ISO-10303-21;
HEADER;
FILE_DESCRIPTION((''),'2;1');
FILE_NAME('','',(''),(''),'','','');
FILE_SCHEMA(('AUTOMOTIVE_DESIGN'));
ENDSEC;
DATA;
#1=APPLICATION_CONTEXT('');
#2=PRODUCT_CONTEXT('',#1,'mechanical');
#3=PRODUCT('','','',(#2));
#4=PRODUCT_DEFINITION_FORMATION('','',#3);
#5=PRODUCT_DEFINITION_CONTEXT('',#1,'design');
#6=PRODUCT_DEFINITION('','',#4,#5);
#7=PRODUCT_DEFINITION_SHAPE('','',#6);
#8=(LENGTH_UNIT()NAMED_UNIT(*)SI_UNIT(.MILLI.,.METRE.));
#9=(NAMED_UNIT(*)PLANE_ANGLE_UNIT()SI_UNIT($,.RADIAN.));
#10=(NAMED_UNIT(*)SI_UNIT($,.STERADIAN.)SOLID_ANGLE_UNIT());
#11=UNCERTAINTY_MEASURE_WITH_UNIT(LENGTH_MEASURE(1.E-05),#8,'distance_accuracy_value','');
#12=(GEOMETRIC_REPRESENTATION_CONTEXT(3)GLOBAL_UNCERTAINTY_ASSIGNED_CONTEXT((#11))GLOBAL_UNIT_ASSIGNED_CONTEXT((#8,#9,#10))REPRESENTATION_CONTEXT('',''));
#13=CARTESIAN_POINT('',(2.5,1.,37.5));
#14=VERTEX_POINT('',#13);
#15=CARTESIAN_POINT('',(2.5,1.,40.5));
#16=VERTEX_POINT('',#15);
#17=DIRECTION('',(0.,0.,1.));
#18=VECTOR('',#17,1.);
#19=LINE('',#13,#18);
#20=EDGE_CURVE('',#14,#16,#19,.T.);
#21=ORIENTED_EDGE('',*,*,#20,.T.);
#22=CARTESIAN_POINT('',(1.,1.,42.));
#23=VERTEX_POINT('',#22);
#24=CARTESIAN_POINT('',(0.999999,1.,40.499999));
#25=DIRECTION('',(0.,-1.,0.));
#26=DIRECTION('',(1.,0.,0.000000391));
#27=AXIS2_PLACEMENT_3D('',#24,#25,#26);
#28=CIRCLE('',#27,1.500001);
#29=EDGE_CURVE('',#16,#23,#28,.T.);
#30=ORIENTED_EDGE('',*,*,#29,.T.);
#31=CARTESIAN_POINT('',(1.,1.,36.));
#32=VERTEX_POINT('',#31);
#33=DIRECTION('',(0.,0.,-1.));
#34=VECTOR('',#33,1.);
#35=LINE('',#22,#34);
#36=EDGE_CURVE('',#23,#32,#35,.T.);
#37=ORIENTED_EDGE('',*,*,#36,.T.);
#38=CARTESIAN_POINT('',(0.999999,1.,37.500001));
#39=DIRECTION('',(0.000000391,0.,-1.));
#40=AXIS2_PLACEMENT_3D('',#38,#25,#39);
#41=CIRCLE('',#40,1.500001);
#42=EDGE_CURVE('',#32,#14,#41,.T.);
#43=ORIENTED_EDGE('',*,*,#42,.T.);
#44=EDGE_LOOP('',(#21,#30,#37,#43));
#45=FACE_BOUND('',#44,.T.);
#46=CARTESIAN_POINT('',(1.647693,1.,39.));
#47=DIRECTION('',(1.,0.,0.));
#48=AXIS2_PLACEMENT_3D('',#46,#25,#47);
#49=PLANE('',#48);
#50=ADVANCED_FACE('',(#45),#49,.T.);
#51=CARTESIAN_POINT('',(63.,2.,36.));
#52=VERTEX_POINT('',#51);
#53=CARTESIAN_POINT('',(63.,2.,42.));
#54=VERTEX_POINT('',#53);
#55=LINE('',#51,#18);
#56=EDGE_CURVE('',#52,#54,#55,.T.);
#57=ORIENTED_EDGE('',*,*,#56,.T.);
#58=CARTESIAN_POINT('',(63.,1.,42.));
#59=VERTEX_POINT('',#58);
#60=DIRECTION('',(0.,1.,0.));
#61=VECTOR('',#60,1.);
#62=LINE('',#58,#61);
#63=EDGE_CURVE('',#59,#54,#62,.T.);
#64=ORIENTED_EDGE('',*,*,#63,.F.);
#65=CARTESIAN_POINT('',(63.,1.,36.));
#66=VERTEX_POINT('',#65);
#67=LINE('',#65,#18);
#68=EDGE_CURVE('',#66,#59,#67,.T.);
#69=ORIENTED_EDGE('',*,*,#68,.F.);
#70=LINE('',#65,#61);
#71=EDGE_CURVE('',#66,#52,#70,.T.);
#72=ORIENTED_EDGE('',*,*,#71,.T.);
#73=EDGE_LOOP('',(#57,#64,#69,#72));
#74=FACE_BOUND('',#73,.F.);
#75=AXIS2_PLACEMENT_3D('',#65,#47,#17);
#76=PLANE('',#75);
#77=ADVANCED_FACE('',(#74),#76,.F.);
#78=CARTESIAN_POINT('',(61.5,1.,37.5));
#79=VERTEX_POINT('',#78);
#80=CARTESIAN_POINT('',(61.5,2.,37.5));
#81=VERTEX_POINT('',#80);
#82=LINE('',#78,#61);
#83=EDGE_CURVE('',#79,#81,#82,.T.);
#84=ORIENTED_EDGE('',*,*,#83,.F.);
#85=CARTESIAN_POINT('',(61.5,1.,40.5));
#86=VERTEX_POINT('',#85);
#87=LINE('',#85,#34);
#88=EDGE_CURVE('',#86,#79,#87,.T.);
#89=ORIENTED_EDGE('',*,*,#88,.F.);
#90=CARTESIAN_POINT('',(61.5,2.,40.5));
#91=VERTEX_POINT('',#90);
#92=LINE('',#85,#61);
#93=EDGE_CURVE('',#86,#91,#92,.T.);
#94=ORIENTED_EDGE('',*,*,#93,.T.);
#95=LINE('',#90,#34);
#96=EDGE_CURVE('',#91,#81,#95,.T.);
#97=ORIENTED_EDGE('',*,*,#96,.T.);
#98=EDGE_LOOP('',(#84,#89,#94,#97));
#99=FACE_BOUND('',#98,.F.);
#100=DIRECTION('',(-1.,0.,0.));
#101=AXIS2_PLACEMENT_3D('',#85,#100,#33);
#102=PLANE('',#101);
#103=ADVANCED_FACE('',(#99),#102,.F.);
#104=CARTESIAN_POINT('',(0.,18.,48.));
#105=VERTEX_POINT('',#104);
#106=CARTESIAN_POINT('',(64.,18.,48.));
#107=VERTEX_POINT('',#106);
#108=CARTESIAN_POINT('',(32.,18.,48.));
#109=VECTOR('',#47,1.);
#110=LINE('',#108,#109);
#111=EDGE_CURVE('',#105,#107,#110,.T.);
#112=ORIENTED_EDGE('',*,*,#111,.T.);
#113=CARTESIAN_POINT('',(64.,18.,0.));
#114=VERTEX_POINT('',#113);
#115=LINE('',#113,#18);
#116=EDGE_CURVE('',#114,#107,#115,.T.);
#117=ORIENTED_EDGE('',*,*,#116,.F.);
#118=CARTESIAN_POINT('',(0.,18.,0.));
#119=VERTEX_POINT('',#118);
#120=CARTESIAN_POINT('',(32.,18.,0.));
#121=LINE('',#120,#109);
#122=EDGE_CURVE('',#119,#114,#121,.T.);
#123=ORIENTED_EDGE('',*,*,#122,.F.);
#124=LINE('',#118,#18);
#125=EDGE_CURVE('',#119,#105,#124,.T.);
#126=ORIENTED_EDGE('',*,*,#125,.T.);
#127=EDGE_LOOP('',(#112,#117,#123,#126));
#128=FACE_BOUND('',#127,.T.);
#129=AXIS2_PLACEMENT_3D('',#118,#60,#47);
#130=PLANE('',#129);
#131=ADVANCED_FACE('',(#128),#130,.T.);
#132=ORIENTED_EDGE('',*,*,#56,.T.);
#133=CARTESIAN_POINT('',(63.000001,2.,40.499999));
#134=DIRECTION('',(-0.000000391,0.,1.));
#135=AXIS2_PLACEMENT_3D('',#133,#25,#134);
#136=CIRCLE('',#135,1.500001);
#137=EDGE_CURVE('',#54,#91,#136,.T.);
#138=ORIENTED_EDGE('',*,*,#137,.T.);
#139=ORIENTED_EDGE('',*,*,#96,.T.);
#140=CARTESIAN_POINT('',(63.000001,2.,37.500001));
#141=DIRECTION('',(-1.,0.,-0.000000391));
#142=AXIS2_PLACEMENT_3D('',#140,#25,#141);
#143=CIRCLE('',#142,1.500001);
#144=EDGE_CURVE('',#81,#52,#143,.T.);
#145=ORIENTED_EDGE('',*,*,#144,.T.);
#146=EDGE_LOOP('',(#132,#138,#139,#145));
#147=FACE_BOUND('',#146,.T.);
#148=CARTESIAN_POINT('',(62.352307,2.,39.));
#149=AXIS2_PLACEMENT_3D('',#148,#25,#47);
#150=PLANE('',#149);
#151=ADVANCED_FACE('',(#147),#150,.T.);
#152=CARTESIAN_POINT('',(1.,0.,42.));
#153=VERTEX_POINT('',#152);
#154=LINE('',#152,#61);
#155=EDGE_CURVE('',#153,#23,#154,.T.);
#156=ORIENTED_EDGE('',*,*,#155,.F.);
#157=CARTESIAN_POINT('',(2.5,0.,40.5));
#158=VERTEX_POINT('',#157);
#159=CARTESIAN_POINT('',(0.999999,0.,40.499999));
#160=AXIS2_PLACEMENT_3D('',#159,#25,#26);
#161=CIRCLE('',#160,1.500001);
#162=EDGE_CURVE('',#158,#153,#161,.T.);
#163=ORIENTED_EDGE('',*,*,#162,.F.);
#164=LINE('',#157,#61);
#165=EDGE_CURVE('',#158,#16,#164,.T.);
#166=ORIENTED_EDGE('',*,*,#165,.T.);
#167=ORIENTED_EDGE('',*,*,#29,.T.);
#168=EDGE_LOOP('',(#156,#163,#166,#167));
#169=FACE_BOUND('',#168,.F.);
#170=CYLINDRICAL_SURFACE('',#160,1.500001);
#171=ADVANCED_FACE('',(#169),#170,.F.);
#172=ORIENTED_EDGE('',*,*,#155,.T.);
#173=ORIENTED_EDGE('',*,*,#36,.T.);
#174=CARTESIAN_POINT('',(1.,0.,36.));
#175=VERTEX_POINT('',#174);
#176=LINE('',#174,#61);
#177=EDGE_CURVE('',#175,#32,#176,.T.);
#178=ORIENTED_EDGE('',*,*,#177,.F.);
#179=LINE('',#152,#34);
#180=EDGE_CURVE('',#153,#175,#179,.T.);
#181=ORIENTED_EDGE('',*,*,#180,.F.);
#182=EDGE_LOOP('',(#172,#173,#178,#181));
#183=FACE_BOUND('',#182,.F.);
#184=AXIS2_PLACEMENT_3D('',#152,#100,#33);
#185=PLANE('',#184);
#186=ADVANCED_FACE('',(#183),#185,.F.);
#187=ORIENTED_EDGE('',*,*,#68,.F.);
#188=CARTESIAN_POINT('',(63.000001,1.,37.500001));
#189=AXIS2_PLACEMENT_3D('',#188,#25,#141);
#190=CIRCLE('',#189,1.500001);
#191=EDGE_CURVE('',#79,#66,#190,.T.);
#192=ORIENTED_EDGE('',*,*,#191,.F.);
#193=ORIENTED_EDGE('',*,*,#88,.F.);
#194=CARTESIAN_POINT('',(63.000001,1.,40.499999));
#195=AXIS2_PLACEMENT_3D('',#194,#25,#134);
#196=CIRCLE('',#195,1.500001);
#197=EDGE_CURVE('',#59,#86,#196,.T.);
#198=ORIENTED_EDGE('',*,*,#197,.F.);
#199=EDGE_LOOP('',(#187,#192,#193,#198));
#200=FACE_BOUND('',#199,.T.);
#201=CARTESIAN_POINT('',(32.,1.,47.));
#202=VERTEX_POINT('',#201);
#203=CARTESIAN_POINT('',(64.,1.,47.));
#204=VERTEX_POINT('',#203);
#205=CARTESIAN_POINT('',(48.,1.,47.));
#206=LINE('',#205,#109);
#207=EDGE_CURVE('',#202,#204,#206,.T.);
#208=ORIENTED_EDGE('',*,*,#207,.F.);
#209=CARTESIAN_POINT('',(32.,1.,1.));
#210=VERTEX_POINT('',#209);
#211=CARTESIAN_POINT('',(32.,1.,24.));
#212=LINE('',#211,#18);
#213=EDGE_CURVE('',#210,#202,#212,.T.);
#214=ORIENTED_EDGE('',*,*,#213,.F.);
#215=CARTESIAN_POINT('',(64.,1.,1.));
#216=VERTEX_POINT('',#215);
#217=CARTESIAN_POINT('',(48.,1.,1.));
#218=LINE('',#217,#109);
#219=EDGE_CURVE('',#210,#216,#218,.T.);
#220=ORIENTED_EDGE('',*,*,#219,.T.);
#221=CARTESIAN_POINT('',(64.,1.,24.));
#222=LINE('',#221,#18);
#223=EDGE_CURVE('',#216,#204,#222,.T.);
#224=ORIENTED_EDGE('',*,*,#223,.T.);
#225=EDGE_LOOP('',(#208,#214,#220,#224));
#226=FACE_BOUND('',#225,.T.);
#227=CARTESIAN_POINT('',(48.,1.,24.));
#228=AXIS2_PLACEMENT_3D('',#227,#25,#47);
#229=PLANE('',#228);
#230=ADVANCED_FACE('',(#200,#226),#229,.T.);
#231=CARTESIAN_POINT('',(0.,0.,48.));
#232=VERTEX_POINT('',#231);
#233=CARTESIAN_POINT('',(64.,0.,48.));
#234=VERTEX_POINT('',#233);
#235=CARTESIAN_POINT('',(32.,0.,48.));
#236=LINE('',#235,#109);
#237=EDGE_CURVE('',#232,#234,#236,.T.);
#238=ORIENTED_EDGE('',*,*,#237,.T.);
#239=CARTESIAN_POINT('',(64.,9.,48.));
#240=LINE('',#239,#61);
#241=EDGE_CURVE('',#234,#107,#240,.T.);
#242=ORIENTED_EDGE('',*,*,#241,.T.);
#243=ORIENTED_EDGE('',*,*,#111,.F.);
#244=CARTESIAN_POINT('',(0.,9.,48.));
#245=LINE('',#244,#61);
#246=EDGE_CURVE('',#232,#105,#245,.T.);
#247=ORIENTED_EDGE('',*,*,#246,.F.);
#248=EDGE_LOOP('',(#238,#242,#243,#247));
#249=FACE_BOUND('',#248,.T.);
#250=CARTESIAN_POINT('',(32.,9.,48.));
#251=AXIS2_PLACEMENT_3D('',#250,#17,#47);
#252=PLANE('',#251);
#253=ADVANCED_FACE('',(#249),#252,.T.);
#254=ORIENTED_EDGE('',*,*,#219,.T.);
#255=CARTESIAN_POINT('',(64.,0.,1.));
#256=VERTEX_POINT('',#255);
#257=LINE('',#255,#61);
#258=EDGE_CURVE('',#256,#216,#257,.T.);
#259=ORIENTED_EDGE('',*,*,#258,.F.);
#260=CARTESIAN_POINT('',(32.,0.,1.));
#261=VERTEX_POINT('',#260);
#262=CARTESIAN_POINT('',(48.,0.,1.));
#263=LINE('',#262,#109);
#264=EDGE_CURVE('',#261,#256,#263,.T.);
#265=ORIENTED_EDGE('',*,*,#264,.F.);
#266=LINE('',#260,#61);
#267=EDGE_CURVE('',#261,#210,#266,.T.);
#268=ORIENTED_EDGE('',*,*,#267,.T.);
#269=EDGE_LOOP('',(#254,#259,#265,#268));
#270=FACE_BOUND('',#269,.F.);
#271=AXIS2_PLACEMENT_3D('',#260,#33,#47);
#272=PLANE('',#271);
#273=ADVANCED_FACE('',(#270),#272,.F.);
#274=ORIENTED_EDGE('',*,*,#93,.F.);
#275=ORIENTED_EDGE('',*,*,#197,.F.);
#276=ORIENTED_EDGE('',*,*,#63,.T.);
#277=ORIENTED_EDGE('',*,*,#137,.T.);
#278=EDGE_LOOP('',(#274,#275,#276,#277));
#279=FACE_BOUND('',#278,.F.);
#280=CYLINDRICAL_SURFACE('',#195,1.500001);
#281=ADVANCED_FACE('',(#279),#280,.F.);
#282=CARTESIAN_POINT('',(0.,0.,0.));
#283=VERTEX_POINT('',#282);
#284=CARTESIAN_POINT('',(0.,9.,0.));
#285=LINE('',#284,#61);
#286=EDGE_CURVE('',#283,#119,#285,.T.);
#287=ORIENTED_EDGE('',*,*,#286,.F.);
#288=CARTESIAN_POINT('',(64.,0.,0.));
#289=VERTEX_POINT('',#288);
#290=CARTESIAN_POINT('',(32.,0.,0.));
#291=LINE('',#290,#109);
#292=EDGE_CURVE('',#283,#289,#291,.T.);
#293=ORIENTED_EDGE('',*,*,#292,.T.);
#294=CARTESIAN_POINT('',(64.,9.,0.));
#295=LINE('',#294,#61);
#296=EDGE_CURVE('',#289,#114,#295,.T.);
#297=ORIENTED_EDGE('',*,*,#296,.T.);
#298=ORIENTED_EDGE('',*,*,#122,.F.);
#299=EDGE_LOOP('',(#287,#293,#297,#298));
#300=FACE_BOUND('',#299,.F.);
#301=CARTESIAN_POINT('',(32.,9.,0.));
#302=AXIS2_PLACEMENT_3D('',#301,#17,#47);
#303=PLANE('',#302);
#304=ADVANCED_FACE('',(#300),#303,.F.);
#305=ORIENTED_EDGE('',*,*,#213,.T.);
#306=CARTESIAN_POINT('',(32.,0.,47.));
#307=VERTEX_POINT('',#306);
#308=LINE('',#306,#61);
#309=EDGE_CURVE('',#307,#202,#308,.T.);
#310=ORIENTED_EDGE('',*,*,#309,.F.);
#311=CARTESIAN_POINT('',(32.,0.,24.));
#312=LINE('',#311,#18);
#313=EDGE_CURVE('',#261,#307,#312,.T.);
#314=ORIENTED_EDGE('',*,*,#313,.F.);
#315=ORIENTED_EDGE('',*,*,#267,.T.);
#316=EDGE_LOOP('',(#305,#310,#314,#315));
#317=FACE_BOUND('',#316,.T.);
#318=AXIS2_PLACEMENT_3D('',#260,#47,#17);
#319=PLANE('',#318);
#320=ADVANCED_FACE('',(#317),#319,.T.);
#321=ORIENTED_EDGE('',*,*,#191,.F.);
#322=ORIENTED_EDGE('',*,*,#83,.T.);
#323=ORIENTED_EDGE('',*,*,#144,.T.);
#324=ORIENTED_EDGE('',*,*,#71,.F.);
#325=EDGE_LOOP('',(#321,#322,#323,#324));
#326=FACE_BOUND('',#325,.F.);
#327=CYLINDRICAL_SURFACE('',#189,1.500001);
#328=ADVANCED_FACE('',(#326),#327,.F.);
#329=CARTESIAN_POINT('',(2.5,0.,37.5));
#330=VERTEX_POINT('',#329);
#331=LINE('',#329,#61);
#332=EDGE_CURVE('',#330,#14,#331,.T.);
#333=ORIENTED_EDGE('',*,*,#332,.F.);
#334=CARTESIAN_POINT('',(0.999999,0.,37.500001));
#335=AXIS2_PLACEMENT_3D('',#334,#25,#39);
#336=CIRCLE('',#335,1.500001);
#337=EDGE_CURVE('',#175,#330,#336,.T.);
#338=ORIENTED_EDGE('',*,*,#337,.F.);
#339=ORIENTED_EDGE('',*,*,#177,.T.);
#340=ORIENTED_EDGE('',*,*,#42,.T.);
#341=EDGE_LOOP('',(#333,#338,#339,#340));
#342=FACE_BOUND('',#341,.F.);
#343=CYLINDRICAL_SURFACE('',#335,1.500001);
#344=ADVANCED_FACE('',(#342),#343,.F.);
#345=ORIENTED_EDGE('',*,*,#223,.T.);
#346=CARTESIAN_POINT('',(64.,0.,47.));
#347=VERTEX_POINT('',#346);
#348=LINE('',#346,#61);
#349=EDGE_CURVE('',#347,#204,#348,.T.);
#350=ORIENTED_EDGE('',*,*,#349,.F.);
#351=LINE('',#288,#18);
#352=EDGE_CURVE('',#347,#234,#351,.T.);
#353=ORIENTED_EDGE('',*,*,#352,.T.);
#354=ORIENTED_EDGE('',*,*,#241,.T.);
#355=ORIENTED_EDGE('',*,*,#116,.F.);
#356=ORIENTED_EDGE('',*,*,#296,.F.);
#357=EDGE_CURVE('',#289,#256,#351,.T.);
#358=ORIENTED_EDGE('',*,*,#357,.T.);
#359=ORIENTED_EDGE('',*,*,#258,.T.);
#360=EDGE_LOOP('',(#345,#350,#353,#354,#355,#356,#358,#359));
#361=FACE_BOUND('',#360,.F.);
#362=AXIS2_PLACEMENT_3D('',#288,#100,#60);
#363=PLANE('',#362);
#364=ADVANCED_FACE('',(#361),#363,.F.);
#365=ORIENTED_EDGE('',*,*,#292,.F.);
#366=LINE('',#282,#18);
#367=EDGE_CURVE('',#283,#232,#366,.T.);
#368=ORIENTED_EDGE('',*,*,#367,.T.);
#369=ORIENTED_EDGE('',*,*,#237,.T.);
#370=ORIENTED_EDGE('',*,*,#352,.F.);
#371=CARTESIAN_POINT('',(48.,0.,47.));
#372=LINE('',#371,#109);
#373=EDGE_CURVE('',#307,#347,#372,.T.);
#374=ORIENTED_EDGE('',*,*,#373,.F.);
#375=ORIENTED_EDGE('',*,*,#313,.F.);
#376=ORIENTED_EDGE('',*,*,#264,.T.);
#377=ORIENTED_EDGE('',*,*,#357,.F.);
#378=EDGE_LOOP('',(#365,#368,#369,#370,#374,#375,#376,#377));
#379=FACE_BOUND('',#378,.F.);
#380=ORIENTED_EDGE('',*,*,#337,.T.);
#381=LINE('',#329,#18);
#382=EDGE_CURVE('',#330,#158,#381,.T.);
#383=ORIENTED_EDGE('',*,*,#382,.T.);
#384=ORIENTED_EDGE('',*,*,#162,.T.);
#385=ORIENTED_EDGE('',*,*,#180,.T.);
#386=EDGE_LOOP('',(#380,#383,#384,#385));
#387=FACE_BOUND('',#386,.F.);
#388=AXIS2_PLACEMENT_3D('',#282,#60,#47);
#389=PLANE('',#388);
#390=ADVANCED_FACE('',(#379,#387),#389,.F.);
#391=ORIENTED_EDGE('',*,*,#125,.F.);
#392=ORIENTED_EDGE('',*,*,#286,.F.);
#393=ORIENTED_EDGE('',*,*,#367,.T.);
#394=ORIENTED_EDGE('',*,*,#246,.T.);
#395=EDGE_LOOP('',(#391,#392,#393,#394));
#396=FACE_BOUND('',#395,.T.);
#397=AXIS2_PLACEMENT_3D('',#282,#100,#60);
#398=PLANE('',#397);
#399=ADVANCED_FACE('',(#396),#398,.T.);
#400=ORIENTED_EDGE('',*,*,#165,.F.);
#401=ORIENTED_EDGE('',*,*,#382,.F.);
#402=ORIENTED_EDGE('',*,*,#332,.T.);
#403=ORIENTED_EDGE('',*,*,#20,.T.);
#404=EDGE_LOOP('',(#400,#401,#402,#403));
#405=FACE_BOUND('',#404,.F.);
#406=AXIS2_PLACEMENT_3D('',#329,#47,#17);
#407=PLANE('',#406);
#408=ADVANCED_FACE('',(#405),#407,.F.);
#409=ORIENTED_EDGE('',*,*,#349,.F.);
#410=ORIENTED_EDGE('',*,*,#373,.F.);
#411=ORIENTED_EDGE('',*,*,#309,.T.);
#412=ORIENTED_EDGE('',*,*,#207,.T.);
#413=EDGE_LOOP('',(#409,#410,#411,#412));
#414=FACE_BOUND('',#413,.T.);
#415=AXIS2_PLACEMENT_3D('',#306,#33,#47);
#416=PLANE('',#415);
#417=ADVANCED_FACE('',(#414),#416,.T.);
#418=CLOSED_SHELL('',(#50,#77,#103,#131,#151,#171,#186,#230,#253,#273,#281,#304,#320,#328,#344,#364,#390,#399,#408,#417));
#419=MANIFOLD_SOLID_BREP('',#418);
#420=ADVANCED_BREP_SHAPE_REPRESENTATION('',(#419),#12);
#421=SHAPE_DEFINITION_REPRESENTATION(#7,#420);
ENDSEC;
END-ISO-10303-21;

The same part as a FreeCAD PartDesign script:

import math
import FreeCAD as App
import Part
import Sketcher
from FreeCAD import Vector
Q = App.Units.Quantity


def add_polygon(sketch, points):
    """Adds a closed chain of lines whose ends are joined by coincident constraints."""
    first, n = sketch.GeometryCount, len(points)
    for a, b in zip(points, points[1:] + points[:1]):
        sketch.addGeometry(Part.LineSegment(App.Vector(*a, 0), App.Vector(*b, 0)), False)
    for i in range(n):
        sketch.addConstraint(Sketcher.Constraint("Coincident", first + i, 2, first + (i + 1) % n, 1))

doc = App.newDocument("Part")
body = doc.addObject("PartDesign::Body", "Body")

# Sketch on XY plane
sketch1 = doc.addObject("Sketcher::SketchObject", "Sketch")
body.addObject(sketch1)
sketch1.AttachmentSupport = (doc.XY_Plane, [""])
sketch1.MapMode = "FlatFace"
add_polygon(sketch1, [(0, 18), (0, 0), (64, 0), (64, 18)])  # lines 0-3
sketch1.addConstraint(Sketcher.Constraint("Vertical", 0))
sketch1.addConstraint(Sketcher.Constraint("Horizontal", 1))
sketch1.addConstraint(Sketcher.Constraint("Vertical", 2))
sketch1.addConstraint(Sketcher.Constraint("Horizontal", 3))
sketch1.addConstraint(Sketcher.Constraint("Coincident", 0, 2, -1, 1))
sketch1.addConstraint(Sketcher.Constraint("DistanceX", 1, 1, 1, 2, Q("64 mm")))
sketch1.addConstraint(Sketcher.Constraint("DistanceY", 0, 2, 0, 1, Q("18 mm")))
pad1 = doc.addObject("PartDesign::Pad", "Pad")
body.addObject(pad1)
pad1.Profile = sketch1
pad1.Length = 48

# Sketch on XZ plane
sketch2 = doc.addObject("Sketcher::SketchObject", "Sketch001")
body.addObject(sketch2)
sketch2.AttachmentSupport = (doc.XZ_Plane, [""])
sketch2.MapMode = "FlatFace"
add_polygon(sketch2, [(32, 47), (32, 1), (64, 1), (64, 47)])  # lines 0-3
sketch2.addConstraint(Sketcher.Constraint("Vertical", 0))
sketch2.addConstraint(Sketcher.Constraint("Horizontal", 1))
sketch2.addConstraint(Sketcher.Constraint("Vertical", 2))
sketch2.addConstraint(Sketcher.Constraint("Horizontal", 3))
sketch2.addConstraint(Sketcher.Constraint("DistanceX", 1, 1, 1, 2, Q("32 mm")))
sketch2.addConstraint(Sketcher.Constraint("DistanceY", 0, 2, 0, 1, Q("46 mm")))
sketch2.addConstraint(Sketcher.Constraint("DistanceX", -1, 1, 0, 2, Q("32 mm")))
sketch2.addConstraint(Sketcher.Constraint("DistanceY", -1, 1, 0, 2, Q("1 mm")))
pocket1 = doc.addObject("PartDesign::Pocket", "Pocket")
body.addObject(pocket1)
pocket1.Profile = sketch2
pocket1.Length = 1

# Sketch on XZ plane
sketch3 = doc.addObject("Sketcher::SketchObject", "Sketch002")
body.addObject(sketch3)
sketch3.AttachmentSupport = (doc.XZ_Plane, [""])
sketch3.MapMode = "FlatFace"
sketch3.AttachmentOffset = App.Placement(Vector(0, 0, -1), App.Rotation())
sketch3.addGeometry(Part.ArcOfCircle(Part.Circle(Vector(63, 40.5, 0), Vector(0, 0, 1), 1.5), math.radians(90), math.radians(180)), False)
sketch3.addGeometry(Part.LineSegment(Vector(61.5, 40.5, 0), Vector(61.5, 37.5, 0)), False)
sketch3.addGeometry(Part.ArcOfCircle(Part.Circle(Vector(63, 37.5, 0), Vector(0, 0, 1), 1.5), math.radians(-180), math.radians(-90)), False)
sketch3.addGeometry(Part.LineSegment(Vector(63, 36, 0), Vector(63, 42, 0)), False)
sketch3.addConstraint(Sketcher.Constraint("Tangent", 0, 2, 1, 1))
sketch3.addConstraint(Sketcher.Constraint("Tangent", 1, 2, 2, 1))
sketch3.addConstraint(Sketcher.Constraint("Coincident", 2, 2, 3, 1))
sketch3.addConstraint(Sketcher.Constraint("Coincident", 3, 2, 0, 1))
sketch3.addConstraint(Sketcher.Constraint("Vertical", 1))
sketch3.addConstraint(Sketcher.Constraint("Vertical", 3))
sketch3.addConstraint(Sketcher.Constraint("Equal", 0, 2))
sketch3.addConstraint(Sketcher.Constraint("Vertical", 0, 3, 2, 2))
sketch3.addConstraint(Sketcher.Constraint("Radius", 0, Q("1.500001 mm")))
sketch3.addConstraint(Sketcher.Constraint("DistanceY", 1, 2, 1, 1, Q("3 mm")))
sketch3.addConstraint(Sketcher.Constraint("DistanceX", -1, 1, 0, 3, Q("63.000001 mm")))
sketch3.addConstraint(Sketcher.Constraint("DistanceY", -1, 1, 2, 2, Q("36 mm")))
pocket2 = doc.addObject("PartDesign::Pocket", "Pocket001")
body.addObject(pocket2)
pocket2.Profile = sketch3
pocket2.Length = 1

# Sketch on XZ plane
sketch4 = doc.addObject("Sketcher::SketchObject", "Sketch003")
body.addObject(sketch4)
sketch4.AttachmentSupport = (doc.XZ_Plane, [""])
sketch4.MapMode = "FlatFace"
sketch4.addGeometry(Part.ArcOfCircle(Part.Circle(Vector(1, 40.5, 0), Vector(0, 0, 1), 1.5), math.radians(0), math.radians(90)), False)
sketch4.addGeometry(Part.LineSegment(Vector(1, 42, 0), Vector(1, 36, 0)), False)
sketch4.addGeometry(Part.ArcOfCircle(Part.Circle(Vector(1, 37.5, 0), Vector(0, 0, 1), 1.5), math.radians(-90), math.radians(0)), False)
sketch4.addGeometry(Part.LineSegment(Vector(2.5, 37.5, 0), Vector(2.5, 40.5, 0)), False)
sketch4.addConstraint(Sketcher.Constraint("Coincident", 0, 2, 1, 1))
sketch4.addConstraint(Sketcher.Constraint("Coincident", 1, 2, 2, 1))
sketch4.addConstraint(Sketcher.Constraint("Tangent", 2, 2, 3, 1))
sketch4.addConstraint(Sketcher.Constraint("Tangent", 3, 2, 0, 1))
sketch4.addConstraint(Sketcher.Constraint("Vertical", 1))
sketch4.addConstraint(Sketcher.Constraint("Vertical", 3))
sketch4.addConstraint(Sketcher.Constraint("Equal", 0, 2))
sketch4.addConstraint(Sketcher.Constraint("Vertical", 2, 3, 0, 2))
sketch4.addConstraint(Sketcher.Constraint("Radius", 0, Q("1.500001 mm")))
sketch4.addConstraint(Sketcher.Constraint("DistanceY", 1, 2, 1, 1, Q("6 mm")))
sketch4.addConstraint(Sketcher.Constraint("DistanceX", -1, 1, 0, 3, Q("0.999999 mm")))
sketch4.addConstraint(Sketcher.Constraint("DistanceY", -1, 1, 0, 2, Q("42 mm")))
pocket3 = doc.addObject("PartDesign::Pocket", "Pocket002")
body.addObject(pocket3)
pocket3.Profile = sketch4
pocket3.Length = 1

doc.recompute()
